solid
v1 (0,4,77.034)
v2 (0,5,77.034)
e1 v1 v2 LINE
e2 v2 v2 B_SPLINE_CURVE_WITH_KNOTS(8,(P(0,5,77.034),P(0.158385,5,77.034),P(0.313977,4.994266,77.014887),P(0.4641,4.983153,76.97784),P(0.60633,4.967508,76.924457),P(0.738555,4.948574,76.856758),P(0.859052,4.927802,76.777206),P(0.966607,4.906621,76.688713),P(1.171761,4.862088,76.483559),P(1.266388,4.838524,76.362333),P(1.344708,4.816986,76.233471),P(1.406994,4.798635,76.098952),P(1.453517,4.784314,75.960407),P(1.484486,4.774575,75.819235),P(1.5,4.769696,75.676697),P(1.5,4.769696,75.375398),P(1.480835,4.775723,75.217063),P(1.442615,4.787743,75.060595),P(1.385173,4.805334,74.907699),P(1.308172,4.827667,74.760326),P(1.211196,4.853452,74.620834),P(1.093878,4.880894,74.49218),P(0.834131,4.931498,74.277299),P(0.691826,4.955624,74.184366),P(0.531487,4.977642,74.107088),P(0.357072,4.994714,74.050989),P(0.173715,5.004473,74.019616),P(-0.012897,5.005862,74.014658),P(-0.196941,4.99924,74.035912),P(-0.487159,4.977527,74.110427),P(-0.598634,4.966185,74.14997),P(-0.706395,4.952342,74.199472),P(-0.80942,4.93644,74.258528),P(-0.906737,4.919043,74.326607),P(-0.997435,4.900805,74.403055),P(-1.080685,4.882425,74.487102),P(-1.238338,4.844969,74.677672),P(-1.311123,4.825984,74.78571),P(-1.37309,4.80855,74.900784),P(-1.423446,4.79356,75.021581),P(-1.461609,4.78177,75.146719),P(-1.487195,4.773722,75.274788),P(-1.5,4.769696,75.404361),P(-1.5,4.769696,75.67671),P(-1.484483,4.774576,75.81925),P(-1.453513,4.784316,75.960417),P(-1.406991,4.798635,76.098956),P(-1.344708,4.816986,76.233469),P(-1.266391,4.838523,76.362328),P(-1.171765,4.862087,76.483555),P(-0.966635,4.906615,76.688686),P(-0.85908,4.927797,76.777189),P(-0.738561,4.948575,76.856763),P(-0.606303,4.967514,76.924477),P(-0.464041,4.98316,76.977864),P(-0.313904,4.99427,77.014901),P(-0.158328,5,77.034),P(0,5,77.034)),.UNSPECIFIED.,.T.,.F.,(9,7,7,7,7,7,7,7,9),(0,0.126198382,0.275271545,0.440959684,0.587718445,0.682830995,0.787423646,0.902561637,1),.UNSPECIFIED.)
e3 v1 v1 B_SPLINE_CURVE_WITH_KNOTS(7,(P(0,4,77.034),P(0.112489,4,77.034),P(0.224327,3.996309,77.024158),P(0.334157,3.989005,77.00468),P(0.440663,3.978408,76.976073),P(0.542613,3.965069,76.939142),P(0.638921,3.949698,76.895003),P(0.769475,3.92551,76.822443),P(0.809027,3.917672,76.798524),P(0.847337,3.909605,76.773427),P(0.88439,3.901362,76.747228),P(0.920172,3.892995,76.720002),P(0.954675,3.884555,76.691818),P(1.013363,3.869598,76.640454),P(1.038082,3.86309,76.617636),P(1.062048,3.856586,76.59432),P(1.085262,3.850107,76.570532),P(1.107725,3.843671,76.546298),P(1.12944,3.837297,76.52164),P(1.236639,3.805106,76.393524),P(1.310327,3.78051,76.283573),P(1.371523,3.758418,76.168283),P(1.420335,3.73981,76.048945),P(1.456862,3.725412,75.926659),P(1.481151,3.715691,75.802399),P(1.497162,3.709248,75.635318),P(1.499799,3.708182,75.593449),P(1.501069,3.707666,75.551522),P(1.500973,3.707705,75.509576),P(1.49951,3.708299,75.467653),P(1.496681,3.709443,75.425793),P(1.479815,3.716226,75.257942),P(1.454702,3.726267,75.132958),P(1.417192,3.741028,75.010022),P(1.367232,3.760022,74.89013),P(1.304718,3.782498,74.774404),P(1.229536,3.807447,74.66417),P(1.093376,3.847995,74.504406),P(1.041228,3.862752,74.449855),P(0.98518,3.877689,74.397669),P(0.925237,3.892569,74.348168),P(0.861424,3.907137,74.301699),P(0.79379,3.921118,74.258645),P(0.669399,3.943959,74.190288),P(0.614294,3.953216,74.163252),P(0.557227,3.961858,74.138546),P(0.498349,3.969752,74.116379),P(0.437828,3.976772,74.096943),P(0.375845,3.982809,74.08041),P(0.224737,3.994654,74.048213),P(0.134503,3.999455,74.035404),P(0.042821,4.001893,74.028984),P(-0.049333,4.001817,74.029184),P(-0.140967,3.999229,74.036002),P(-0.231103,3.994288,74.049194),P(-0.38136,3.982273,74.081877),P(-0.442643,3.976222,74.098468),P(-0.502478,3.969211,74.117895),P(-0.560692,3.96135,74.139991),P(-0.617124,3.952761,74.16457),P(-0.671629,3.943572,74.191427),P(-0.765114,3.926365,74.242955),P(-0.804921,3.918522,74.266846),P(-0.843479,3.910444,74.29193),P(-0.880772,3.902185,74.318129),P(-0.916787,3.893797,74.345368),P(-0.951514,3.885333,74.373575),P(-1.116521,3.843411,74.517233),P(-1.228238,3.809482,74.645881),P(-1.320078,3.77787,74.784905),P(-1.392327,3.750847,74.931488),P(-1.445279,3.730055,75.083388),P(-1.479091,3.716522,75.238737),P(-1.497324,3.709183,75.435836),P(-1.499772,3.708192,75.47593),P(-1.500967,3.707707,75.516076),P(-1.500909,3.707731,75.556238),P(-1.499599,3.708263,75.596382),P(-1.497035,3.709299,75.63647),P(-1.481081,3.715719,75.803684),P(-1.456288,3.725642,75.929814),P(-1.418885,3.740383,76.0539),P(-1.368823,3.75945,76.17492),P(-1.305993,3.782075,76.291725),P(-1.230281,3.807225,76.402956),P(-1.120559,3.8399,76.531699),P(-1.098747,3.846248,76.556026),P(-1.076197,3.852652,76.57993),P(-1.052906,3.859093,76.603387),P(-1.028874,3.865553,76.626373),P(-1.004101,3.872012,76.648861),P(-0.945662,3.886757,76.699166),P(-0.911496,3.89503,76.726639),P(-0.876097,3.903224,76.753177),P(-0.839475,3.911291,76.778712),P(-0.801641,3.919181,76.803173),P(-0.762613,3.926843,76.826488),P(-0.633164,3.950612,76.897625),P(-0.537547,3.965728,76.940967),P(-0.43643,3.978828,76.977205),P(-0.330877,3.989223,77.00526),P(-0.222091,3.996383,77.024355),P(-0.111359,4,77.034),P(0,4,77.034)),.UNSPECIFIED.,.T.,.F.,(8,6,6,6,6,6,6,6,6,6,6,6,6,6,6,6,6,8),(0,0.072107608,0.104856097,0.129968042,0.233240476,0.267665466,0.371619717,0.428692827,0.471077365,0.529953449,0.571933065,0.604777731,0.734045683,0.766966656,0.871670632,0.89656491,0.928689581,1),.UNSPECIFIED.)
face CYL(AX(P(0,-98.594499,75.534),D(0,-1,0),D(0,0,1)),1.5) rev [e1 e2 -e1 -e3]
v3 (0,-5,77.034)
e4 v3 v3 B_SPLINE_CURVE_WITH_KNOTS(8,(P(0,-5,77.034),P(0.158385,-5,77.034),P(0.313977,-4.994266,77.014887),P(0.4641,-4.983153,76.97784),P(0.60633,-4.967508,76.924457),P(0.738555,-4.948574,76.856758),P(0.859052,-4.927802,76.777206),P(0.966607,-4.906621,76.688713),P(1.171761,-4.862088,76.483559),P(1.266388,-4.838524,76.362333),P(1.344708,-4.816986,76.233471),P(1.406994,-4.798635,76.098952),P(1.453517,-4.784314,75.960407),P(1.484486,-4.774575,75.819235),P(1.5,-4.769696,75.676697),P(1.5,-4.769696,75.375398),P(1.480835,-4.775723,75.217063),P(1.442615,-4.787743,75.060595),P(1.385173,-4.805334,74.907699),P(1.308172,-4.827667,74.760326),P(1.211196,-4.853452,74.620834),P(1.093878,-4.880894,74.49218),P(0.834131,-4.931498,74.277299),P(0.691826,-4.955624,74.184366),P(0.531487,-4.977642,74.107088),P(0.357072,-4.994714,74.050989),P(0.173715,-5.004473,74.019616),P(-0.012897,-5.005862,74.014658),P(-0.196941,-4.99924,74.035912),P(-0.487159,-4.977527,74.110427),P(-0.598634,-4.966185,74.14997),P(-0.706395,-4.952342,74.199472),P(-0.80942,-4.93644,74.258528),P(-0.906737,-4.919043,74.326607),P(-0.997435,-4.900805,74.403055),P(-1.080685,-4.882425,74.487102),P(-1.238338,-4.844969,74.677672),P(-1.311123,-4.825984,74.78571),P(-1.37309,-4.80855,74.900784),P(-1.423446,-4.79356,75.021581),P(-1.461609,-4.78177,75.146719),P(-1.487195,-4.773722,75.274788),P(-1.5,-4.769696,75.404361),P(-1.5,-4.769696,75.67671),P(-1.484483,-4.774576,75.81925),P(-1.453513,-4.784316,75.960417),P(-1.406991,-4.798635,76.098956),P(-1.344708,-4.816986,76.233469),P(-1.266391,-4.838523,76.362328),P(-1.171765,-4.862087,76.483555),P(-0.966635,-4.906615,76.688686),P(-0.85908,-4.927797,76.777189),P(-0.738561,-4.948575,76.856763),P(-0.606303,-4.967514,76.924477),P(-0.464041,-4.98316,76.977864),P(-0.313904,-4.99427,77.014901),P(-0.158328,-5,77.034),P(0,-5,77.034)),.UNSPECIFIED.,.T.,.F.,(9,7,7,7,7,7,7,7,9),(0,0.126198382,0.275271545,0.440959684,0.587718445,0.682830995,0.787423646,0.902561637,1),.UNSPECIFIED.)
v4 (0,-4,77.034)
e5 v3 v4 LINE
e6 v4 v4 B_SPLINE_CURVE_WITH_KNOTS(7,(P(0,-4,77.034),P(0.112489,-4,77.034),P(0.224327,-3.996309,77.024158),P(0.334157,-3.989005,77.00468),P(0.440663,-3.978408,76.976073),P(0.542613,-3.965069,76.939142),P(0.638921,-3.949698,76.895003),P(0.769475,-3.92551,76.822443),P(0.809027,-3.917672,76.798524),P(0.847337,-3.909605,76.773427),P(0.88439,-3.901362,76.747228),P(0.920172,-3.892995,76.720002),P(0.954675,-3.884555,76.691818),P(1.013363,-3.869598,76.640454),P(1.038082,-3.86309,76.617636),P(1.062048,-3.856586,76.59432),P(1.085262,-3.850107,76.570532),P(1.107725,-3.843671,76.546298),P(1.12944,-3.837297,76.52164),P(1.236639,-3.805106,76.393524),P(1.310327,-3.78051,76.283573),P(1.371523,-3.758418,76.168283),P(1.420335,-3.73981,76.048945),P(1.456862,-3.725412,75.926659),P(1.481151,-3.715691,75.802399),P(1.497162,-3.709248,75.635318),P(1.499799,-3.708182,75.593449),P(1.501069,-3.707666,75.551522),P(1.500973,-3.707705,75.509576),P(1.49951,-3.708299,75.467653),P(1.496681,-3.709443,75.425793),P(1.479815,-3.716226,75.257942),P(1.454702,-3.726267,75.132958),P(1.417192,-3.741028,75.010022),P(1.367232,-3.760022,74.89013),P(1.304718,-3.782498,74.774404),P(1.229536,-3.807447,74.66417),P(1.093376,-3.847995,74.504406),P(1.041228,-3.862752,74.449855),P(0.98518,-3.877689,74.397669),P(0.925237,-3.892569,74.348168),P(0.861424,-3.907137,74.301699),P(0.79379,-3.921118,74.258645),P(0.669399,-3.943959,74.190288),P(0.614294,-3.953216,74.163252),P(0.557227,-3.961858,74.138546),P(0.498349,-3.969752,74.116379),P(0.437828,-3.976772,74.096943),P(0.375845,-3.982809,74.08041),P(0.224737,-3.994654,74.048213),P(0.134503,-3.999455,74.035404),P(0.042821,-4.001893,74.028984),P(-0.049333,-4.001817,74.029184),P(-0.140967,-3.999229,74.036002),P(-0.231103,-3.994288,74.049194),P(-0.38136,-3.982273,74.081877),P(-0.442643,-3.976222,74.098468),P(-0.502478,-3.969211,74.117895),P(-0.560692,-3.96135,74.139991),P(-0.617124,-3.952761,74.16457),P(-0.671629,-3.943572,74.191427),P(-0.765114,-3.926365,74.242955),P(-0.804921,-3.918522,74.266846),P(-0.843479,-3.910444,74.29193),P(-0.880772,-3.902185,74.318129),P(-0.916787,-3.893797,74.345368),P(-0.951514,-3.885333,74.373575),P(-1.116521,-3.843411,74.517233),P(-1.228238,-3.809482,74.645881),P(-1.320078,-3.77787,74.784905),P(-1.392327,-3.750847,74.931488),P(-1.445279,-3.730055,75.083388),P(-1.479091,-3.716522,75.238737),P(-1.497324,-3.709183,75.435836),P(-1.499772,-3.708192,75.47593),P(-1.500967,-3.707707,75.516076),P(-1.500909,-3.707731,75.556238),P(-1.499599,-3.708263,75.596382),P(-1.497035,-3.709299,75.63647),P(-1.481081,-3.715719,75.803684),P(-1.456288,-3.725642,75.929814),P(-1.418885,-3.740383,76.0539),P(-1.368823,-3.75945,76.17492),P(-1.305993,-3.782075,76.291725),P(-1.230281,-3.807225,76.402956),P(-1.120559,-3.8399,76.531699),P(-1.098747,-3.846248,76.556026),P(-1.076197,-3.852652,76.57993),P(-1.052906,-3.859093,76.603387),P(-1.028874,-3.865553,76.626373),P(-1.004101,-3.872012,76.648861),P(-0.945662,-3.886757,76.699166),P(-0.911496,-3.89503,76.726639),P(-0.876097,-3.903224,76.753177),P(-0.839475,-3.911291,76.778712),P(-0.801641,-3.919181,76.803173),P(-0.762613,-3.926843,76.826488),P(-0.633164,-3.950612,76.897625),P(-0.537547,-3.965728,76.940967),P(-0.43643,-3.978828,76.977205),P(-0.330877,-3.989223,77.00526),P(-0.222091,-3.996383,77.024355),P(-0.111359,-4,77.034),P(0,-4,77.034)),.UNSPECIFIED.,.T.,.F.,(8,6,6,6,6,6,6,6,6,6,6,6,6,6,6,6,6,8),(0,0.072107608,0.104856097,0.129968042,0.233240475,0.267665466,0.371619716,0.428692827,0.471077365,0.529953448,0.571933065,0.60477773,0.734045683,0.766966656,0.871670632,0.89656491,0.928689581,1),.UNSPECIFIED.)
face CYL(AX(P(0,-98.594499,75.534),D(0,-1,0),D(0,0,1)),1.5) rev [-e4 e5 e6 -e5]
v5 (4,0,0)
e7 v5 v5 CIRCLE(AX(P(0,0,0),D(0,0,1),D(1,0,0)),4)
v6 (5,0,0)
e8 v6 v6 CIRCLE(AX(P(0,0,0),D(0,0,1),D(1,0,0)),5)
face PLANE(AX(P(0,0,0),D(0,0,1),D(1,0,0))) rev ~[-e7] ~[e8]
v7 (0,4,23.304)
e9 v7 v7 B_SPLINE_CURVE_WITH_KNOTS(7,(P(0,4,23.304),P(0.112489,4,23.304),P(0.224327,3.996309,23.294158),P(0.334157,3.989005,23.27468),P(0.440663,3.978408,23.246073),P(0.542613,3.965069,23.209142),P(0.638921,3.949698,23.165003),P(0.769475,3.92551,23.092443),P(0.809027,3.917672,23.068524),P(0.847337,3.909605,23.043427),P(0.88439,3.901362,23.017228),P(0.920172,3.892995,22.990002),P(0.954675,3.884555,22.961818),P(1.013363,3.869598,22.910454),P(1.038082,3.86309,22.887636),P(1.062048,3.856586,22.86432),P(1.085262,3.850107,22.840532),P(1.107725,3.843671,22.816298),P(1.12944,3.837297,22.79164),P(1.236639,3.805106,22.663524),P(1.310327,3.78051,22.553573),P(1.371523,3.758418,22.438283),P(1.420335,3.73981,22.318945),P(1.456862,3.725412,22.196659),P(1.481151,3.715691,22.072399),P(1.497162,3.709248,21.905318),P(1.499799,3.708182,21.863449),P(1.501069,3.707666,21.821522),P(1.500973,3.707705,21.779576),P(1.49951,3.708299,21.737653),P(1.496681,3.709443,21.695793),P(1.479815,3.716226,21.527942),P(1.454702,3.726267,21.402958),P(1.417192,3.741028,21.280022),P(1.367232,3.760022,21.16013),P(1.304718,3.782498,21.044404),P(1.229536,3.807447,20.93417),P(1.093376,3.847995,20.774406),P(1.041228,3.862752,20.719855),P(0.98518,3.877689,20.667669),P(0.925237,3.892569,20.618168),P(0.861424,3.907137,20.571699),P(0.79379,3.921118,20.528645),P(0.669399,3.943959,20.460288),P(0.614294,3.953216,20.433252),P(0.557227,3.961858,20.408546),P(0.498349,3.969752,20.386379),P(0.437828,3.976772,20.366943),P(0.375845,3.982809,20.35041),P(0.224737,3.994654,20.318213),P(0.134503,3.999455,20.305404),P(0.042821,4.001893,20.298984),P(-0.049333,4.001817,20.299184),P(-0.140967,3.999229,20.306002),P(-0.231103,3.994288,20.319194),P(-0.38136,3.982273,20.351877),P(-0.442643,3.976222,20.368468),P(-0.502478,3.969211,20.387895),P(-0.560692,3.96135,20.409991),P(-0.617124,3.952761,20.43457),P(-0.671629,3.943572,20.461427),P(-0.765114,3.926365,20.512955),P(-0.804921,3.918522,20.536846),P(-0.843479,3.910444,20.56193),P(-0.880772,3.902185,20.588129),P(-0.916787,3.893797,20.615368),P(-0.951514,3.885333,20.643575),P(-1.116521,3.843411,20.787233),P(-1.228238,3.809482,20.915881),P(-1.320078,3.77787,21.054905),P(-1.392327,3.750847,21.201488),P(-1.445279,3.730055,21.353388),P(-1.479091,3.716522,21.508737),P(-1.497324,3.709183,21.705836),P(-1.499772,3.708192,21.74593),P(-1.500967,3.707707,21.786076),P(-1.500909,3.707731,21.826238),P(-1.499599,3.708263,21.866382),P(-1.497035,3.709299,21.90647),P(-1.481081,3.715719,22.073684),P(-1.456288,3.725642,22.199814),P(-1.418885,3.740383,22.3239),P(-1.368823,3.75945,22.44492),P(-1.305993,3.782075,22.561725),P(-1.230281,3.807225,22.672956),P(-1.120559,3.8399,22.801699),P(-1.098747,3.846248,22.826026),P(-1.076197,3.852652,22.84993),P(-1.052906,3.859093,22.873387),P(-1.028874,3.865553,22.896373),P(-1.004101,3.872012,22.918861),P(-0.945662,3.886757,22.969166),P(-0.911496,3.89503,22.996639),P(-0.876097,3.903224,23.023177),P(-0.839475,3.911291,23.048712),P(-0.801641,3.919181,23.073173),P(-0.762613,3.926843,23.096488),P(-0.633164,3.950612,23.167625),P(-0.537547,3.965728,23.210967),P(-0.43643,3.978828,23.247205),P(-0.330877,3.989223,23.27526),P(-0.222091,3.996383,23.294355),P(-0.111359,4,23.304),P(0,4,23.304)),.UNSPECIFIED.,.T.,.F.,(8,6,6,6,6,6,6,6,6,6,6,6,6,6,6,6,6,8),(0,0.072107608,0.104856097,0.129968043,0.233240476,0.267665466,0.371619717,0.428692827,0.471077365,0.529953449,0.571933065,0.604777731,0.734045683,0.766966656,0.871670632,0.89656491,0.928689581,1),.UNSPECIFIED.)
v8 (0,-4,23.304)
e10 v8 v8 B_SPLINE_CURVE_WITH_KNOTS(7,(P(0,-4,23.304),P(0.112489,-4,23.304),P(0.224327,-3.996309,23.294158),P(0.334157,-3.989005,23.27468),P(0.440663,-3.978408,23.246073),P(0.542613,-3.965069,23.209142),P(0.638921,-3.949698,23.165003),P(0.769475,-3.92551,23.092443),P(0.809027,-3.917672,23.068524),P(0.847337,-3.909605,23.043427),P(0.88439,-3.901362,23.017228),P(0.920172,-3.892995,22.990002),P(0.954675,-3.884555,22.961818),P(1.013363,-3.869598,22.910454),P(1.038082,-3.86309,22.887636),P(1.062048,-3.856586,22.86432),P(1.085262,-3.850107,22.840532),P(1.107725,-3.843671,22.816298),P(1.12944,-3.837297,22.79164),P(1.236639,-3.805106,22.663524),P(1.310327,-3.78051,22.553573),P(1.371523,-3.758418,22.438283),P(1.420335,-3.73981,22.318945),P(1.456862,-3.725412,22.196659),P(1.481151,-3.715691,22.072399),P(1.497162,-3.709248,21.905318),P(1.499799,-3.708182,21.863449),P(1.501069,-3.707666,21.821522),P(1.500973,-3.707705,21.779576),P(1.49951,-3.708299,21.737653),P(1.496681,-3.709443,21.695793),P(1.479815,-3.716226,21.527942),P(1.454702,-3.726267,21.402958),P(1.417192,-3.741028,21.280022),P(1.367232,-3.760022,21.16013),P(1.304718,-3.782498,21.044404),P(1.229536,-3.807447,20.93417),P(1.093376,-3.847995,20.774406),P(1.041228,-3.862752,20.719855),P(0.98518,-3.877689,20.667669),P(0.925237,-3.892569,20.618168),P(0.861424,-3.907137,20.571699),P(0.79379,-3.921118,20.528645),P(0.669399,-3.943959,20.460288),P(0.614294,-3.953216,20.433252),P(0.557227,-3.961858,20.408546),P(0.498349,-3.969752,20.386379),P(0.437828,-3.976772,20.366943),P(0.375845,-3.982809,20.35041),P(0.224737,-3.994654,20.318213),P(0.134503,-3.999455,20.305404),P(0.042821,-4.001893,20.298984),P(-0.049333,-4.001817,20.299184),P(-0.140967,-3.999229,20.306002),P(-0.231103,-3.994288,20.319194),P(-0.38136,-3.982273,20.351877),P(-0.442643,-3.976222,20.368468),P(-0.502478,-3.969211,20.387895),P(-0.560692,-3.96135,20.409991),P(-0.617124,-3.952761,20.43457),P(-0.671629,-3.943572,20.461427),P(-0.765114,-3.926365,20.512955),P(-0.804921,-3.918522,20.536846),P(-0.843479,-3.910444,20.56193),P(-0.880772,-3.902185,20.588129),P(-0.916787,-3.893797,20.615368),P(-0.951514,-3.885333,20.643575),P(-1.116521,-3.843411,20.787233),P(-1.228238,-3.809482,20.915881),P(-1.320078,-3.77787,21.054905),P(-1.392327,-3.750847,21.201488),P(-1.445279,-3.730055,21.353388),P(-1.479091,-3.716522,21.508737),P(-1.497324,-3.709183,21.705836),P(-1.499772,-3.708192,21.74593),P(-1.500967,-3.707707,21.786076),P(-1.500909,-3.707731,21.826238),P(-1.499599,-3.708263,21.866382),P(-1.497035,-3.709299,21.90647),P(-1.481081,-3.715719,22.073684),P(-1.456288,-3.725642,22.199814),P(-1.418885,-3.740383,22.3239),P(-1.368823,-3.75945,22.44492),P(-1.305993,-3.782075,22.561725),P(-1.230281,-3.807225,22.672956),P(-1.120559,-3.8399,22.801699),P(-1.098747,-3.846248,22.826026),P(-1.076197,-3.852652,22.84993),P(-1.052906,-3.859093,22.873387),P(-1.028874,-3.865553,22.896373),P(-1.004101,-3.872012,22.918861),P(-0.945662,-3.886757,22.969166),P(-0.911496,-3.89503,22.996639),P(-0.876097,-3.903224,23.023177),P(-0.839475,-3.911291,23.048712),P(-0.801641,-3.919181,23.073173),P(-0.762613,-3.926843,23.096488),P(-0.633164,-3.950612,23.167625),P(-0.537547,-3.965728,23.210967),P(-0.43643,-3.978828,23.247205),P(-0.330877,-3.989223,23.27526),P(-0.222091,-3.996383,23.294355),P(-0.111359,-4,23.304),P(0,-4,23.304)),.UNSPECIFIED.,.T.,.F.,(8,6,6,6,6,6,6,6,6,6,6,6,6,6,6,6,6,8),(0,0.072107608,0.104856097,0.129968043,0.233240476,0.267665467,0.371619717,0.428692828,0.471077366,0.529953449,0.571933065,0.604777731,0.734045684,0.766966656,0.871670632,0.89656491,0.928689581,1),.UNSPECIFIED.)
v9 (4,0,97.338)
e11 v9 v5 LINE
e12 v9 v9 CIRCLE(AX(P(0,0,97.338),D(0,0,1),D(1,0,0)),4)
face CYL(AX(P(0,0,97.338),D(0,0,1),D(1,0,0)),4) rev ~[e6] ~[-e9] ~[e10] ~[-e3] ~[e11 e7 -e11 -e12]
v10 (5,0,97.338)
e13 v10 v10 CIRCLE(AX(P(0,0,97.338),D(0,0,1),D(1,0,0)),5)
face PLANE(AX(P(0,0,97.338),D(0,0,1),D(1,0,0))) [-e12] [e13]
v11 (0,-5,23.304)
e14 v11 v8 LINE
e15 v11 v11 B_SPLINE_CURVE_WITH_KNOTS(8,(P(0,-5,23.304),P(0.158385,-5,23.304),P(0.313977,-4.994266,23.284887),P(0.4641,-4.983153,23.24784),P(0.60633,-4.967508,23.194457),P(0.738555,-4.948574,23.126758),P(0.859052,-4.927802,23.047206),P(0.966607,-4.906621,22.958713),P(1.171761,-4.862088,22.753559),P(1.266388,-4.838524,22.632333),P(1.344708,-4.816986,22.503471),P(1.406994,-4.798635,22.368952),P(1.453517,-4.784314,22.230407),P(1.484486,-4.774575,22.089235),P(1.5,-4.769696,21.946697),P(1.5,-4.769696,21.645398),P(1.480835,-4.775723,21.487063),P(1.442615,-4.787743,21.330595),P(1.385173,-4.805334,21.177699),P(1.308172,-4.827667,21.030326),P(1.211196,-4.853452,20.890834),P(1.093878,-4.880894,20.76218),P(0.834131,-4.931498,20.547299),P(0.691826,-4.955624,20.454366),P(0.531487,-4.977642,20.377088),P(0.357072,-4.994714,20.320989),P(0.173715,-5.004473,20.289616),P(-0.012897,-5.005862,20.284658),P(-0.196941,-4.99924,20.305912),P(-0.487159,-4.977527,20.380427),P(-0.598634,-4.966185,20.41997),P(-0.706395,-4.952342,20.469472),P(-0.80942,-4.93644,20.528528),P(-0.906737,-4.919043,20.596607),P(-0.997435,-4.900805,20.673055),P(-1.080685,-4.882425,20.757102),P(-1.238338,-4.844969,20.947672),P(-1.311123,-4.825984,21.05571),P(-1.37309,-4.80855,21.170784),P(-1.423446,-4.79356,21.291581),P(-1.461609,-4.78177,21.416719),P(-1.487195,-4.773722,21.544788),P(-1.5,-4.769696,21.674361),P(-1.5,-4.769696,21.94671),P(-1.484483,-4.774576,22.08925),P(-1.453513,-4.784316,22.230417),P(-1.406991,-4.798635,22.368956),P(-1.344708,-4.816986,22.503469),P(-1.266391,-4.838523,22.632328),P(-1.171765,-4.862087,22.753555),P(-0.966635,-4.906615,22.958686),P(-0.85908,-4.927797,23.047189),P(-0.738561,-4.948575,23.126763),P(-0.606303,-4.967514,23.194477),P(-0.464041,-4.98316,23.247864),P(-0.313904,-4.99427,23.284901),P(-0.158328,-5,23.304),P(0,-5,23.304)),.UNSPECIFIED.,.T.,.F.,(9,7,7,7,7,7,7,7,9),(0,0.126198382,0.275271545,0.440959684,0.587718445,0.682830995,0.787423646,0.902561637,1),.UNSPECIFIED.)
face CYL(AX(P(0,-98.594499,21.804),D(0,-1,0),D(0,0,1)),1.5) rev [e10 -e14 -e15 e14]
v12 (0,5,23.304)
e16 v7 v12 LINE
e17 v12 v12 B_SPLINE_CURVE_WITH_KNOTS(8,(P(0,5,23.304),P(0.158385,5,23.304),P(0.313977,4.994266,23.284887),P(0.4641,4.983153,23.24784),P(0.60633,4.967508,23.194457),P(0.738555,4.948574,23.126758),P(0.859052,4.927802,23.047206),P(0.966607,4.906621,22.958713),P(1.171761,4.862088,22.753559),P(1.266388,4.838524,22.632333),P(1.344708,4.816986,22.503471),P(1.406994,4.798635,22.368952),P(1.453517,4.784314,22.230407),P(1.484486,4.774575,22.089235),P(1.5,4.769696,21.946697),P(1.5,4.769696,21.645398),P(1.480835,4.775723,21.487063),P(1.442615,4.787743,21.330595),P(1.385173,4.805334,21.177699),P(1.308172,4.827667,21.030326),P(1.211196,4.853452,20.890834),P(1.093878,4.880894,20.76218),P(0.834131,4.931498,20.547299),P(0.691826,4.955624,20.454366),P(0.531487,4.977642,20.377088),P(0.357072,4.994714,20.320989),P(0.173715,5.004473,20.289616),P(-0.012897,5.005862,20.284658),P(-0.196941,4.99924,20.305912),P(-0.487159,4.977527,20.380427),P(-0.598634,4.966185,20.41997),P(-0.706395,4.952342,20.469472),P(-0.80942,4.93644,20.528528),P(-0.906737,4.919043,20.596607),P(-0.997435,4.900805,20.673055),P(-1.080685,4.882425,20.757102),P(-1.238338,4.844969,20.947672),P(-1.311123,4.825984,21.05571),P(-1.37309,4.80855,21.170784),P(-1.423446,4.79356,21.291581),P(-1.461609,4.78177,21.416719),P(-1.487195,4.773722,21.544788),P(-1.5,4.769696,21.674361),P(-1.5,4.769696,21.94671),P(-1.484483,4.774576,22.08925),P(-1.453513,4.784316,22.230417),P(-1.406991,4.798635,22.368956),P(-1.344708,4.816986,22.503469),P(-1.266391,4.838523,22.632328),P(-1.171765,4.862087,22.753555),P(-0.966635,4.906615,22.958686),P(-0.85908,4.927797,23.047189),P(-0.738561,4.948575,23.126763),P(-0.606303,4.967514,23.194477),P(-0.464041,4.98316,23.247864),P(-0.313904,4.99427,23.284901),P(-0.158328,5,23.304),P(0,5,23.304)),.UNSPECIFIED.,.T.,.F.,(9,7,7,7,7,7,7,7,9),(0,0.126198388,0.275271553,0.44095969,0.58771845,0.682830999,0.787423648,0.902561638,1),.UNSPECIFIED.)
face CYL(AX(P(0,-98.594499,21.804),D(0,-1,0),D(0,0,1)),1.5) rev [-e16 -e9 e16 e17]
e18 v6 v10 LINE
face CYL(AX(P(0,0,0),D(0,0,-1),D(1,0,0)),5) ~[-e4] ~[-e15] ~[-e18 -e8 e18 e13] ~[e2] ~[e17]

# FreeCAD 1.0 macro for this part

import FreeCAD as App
import Part
import Sketcher
from FreeCAD import Vector

doc = App.newDocument("Part")
body = doc.addObject("PartDesign::Body", "Body")

# Sketch on XY plane
sketch1 = doc.addObject("Sketcher::SketchObject", "Sketch")
body.addObject(sketch1)
sketch1.AttachmentSupport = (doc.XY_Plane, [""])
sketch1.MapMode = "FlatFace"
sketch1.addGeometry(Part.Circle(Vector(0, 0, 0), Vector(0, 0, 1), 5), False)
sketch1.addConstraint(Sketcher.Constraint("Coincident", 0, 3, -1, 1))
sketch1.addConstraint(Sketcher.Constraint("Diameter", 0, 10.0))
pad1 = doc.addObject("PartDesign::Pad", "Pad")
body.addObject(pad1)
pad1.Profile = sketch1
pad1.Length = 97.338

# Sketch on XY plane
sketch2 = doc.addObject("Sketcher::SketchObject", "Sketch001")
body.addObject(sketch2)
sketch2.AttachmentSupport = (doc.XY_Plane, [""])
sketch2.MapMode = "FlatFace"
sketch2.AttachmentOffset = App.Placement(Vector(0, 0, 97.338), App.Rotation())
sketch2.addGeometry(Part.Circle(Vector(0, 0, 0), Vector(0, 0, 1), 4), False)
sketch2.addConstraint(Sketcher.Constraint("Coincident", 0, 3, -1, 1))
sketch2.addConstraint(Sketcher.Constraint("Diameter", 0, 8.0))
pocket1 = doc.addObject("PartDesign::Pocket", "Pocket")
body.addObject(pocket1)
pocket1.Profile = sketch2
pocket1.Type = "UpToFirst"

# Sketch on XZ plane
sketch3 = doc.addObject("Sketcher::SketchObject", "Sketch002")
body.addObject(sketch3)
sketch3.AttachmentSupport = (doc.XZ_Plane, [""])
sketch3.MapMode = "FlatFace"
sketch3.addGeometry(Part.Circle(Vector(0, 21.8, 0), Vector(0, 0, 1), 1.5), False)
sketch3.addGeometry(Part.Circle(Vector(0, 75.5, 0), Vector(0, 0, 1), 1.5), False)
sketch3.addConstraint(Sketcher.Constraint("Equal", 0, 1))
sketch3.addConstraint(Sketcher.Constraint("PointOnObject", 0, 3, -2))
sketch3.addConstraint(Sketcher.Constraint("PointOnObject", 1, 3, -2))
sketch3.addConstraint(Sketcher.Constraint("Diameter", 0, 3.0))
sketch3.addConstraint(Sketcher.Constraint("DistanceY", 0, 3, 1, 3, 53.73))
sketch3.addConstraint(Sketcher.Constraint("DistanceY", -1, 1, 0, 3, 21.804))
pocket2 = doc.addObject("PartDesign::Pocket", "Pocket001")
body.addObject(pocket2)
pocket2.Profile = sketch3
pocket2.Type = "ThroughAll"
pocket2.Midplane = True

doc.recompute()
